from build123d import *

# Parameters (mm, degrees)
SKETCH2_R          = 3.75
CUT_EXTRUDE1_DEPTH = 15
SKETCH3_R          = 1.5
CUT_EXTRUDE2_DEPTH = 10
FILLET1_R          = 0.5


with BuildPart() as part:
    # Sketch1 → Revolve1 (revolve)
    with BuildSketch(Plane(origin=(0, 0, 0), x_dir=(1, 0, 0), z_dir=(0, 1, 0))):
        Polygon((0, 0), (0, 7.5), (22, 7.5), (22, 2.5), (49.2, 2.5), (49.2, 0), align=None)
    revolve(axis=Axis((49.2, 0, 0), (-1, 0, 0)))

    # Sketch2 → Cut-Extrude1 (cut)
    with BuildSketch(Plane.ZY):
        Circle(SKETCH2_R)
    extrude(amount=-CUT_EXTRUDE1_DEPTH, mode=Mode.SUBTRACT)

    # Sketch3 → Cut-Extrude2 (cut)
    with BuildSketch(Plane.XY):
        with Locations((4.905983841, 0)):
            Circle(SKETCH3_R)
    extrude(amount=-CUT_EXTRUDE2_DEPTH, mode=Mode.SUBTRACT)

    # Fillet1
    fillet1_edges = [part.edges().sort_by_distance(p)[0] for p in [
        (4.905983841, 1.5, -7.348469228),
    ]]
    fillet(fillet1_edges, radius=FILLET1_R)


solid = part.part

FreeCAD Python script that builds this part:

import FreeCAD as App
import Part
import Sketcher

V = App.Vector


def edges_at(feature, points):
    """Names of the edges that pass closest to the given points."""
    edges = feature.Shape.Edges
    near = lambda p: min(range(len(edges)), key=lambda i: edges[i].distToShape(Part.Vertex(*p))[0])
    return sorted({f"Edge{near(p) + 1}" for p in points})


def add_polygon(sketch, points):
    """Adds a closed chain of lines whose ends are joined by coincident constraints."""
    first, n = sketch.GeometryCount, len(points)
    for a, b in zip(points, points[1:] + points[:1]):
        sketch.addGeometry(Part.LineSegment(App.Vector(*a, 0), App.Vector(*b, 0)), False)
    for i in range(n):
        sketch.addConstraint(Sketcher.Constraint("Coincident", first + i, 2, first + (i + 1) % n, 1))

doc = App.newDocument("Part")
body = doc.addObject("PartDesign::Body", "Body")

# Sketch on XZ plane
sketch1 = body.newObject("Sketcher::SketchObject", "Sketch")
sketch1.AttachmentSupport = (doc.getObject("XZ_Plane"), [""])
sketch1.MapMode = "FlatFace"
add_polygon(sketch1, [(0, -7.5), (0, 0), (49.2, 0), (49.2, -2.5), (22, -2.5), (22, -7.5)])  # lines 0-5
sketch1.addConstraint(Sketcher.Constraint("Vertical", 0))
sketch1.addConstraint(Sketcher.Constraint("Horizontal", 1))
sketch1.addConstraint(Sketcher.Constraint("Vertical", 2))
sketch1.addConstraint(Sketcher.Constraint("Horizontal", 3))
sketch1.addConstraint(Sketcher.Constraint("Vertical", 4))
sketch1.addConstraint(Sketcher.Constraint("Horizontal", 5))
sketch1.addConstraint(Sketcher.Constraint("Coincident", 0, 2, -1, 1))
sketch1.addConstraint(Sketcher.Constraint("DistanceX", 5, 2, 5, 1, 22.0))
sketch1.addConstraint(Sketcher.Constraint("DistanceY", 4, 2, 4, 1, 5.0))
sketch1.addConstraint(Sketcher.Constraint("DistanceX", 1, 1, 1, 2, 49.2))
sketch1.addConstraint(Sketcher.Constraint("DistanceY", 0, 1, 0, 2, 7.5))
revolution = body.newObject("PartDesign::Revolution", "Revolution")
revolution.Profile = sketch1
revolution.ReferenceAxis = (sketch1, ["H_Axis"])
revolution.Angle = 360

# Sketch on YZ plane
sketch2 = body.newObject("Sketcher::SketchObject", "Sketch001")
sketch2.AttachmentSupport = (doc.getObject("YZ_Plane"), [""])
sketch2.MapMode = "FlatFace"
sketch2.addGeometry(Part.Circle(V(0, 0, 0), V(0, 0, 1), 3.8), False)
sketch2.addConstraint(Sketcher.Constraint("Coincident", 0, 3, -1, 1))
sketch2.addConstraint(Sketcher.Constraint("Diameter", 0, 7.5))
pocket1 = body.newObject("PartDesign::Pocket", "Pocket")
pocket1.Profile = sketch2
pocket1.Length = 15
pocket1.Reversed = True

# Sketch on XY plane
sketch3 = body.newObject("Sketcher::SketchObject", "Sketch002")
sketch3.AttachmentSupport = (doc.getObject("XY_Plane"), [""])
sketch3.MapMode = "FlatFace"
sketch3.addGeometry(Part.Circle(V(4.9, 0, 0), V(0, 0, 1), 1.5), False)
sketch3.addConstraint(Sketcher.Constraint("PointOnObject", 0, 3, -1))
sketch3.addConstraint(Sketcher.Constraint("Diameter", 0, 3.0))
sketch3.addConstraint(Sketcher.Constraint("DistanceX", -1, 1, 0, 3, 4.905984))
pocket2 = body.newObject("PartDesign::Pocket", "Pocket001")
pocket2.Profile = sketch3
pocket2.Length = 10
doc.recompute()

fillet = body.newObject("PartDesign::Fillet", "Fillet")
fillet.Base = (pocket2, edges_at(pocket2, [(4.906, 1.5, -7.348)]))
fillet.Radius = 0.5

doc.recompute()
